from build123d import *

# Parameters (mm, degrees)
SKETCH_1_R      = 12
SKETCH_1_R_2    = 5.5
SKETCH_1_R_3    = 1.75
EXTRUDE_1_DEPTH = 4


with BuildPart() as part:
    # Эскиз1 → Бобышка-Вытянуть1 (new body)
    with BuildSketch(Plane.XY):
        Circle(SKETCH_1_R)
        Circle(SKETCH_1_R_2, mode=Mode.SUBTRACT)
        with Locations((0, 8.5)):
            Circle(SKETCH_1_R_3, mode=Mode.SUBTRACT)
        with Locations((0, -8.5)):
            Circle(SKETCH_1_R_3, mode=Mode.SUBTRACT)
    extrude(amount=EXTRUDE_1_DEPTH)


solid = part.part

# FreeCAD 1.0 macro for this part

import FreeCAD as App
import Part
import Sketcher

doc = App.newDocument("Part")
body = doc.addObject("PartDesign::Body", "Body")

sketch1 = body.newObject("Sketcher::SketchObject", "Sketch")
sketch1.AttachmentSupport = (doc.getObject("XY_Plane"), [""])
sketch1.MapMode = "FlatFace"
sketch1.addGeometry([
    Part.Circle(App.Vector(0, 0, 0), App.Vector(0, 0, 1), 12),
    Part.Circle(App.Vector(0, -8.5, 0), App.Vector(0, 0, 1), 1.8),
    Part.Circle(App.Vector(0, 0, 0), App.Vector(0, 0, 1), 5.5),
    Part.Circle(App.Vector(0, 8.5, 0), App.Vector(0, 0, 1), 1.8),
], False)
sketch1.addConstraint([
    Sketcher.Constraint("Coincident", 0, 3, -1, 1),
    Sketcher.Constraint("Coincident", 2, 3, -1, 1),
    Sketcher.Constraint("Equal", 1, 3),
    Sketcher.Constraint("Symmetric", 1, 3, 3, 3, -1, 1),
    Sketcher.Constraint("PointOnObject", 1, 3, -2),
    Sketcher.Constraint("Diameter", 0, 24.0),
    Sketcher.Constraint("Diameter", 2, 11.0),
    Sketcher.Constraint("Diameter", 1, 3.5),
    Sketcher.Constraint("DistanceY", 1, 3, 3, 3, 17.0),
])
pad1 = body.newObject("PartDesign::Pad", "Pad")
pad1.Profile = sketch1
pad1.Length = 4

doc.recompute()
